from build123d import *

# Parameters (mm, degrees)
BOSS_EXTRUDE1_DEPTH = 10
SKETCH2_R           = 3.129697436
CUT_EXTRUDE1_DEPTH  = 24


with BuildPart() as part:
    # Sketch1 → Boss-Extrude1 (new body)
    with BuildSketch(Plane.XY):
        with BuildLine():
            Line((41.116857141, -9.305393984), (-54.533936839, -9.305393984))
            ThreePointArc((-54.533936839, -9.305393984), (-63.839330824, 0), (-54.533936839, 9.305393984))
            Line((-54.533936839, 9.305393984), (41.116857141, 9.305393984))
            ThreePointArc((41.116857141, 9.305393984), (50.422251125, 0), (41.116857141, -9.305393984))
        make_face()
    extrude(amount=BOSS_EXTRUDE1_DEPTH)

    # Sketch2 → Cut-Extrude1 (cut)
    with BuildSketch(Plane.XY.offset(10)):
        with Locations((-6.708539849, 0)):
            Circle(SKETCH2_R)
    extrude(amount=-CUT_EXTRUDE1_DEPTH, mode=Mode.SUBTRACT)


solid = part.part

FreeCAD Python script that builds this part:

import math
import FreeCAD as App
import Part
import Sketcher
from FreeCAD import Vector
Q = App.Units.Quantity

doc = App.newDocument("Part")
params = doc.addObject("Spreadsheet::Sheet", "Params")
for row, (alias, value) in enumerate([
    ("pad1_length", "10 mm"),
    ("pocket1_length", "24 mm"),
], start=1):
    params.set(f"A{row}", alias)
    params.set(f"B{row}", "=" + value)
    params.setAlias(f"B{row}", alias)

body = doc.addObject("PartDesign::Body", "Body")

# Sketch on XY plane
sketch1 = body.newObject("Sketcher::SketchObject", "Sketch")
sketch1.AttachmentSupport = (doc.getObject("XY_Plane"), [""])
sketch1.MapMode = "FlatFace"
sketch1.addGeometry(Part.LineSegment(Vector(-54.533937, -9.305394, 0), Vector(41.116857, -9.305394, 0)), False)
sketch1.addGeometry(Part.ArcOfCircle(Part.Circle(Vector(41.116857, 0, 0), Vector(0, 0, 1), 9.305394), math.radians(-90), math.radians(90)), False)
sketch1.addGeometry(Part.LineSegment(Vector(41.116857, 9.305394, 0), Vector(-54.533937, 9.305394, 0)), False)
sketch1.addGeometry(Part.ArcOfCircle(Part.Circle(Vector(-54.533937, 0, 0), Vector(0, 0, 1), 9.305394), math.radians(90), math.radians(270)), False)
sketch1.addConstraint(Sketcher.Constraint("Tangent", 0, 2, 1, 1))
sketch1.addConstraint(Sketcher.Constraint("Tangent", 1, 2, 2, 1))
sketch1.addConstraint(Sketcher.Constraint("Tangent", 2, 2, 3, 1))
sketch1.addConstraint(Sketcher.Constraint("Tangent", 3, 2, 0, 1))
sketch1.addConstraint(Sketcher.Constraint("Horizontal", 0))
sketch1.addConstraint(Sketcher.Constraint("Horizontal", 2))
sketch1.addConstraint(Sketcher.Constraint("PointOnObject", 1, 3, -1))
sketch1.addConstraint(Sketcher.Constraint("Radius", 1, Q("9.305394 mm")))
sketch1.addConstraint(Sketcher.Constraint("DistanceX", 0, 1, 0, 2, Q("95.650794 mm")))
sketch1.addConstraint(Sketcher.Constraint("DistanceX", -1, 1, 1, 3, Q("41.116857 mm")))
pad1 = body.newObject("PartDesign::Pad", "Pad")
pad1.Profile = sketch1
pad1.setExpression("Length", "Params.pad1_length")

# Sketch on XY plane
sketch2 = body.newObject("Sketcher::SketchObject", "Sketch001")
sketch2.AttachmentSupport = (doc.getObject("XY_Plane"), [""])
sketch2.MapMode = "FlatFace"
sketch2.AttachmentOffset = App.Placement(Vector(0, 0, 10), App.Rotation())
sketch2.addGeometry(Part.Circle(Vector(-6.70854, 0, 0), Vector(0, 0, 1), 3.129697), False)
sketch2.addConstraint(Sketcher.Constraint("PointOnObject", 0, 3, -1))
sketch2.addConstraint(Sketcher.Constraint("Diameter", 0, Q("6.259395 mm")))
sketch2.addConstraint(Sketcher.Constraint("DistanceX", 0, 3, -1, 1, Q("6.70854 mm")))
pocket1 = body.newObject("PartDesign::Pocket", "Pocket")
pocket1.Profile = sketch2
pocket1.setExpression("Length", "Params.pocket1_length")

doc.recompute()
